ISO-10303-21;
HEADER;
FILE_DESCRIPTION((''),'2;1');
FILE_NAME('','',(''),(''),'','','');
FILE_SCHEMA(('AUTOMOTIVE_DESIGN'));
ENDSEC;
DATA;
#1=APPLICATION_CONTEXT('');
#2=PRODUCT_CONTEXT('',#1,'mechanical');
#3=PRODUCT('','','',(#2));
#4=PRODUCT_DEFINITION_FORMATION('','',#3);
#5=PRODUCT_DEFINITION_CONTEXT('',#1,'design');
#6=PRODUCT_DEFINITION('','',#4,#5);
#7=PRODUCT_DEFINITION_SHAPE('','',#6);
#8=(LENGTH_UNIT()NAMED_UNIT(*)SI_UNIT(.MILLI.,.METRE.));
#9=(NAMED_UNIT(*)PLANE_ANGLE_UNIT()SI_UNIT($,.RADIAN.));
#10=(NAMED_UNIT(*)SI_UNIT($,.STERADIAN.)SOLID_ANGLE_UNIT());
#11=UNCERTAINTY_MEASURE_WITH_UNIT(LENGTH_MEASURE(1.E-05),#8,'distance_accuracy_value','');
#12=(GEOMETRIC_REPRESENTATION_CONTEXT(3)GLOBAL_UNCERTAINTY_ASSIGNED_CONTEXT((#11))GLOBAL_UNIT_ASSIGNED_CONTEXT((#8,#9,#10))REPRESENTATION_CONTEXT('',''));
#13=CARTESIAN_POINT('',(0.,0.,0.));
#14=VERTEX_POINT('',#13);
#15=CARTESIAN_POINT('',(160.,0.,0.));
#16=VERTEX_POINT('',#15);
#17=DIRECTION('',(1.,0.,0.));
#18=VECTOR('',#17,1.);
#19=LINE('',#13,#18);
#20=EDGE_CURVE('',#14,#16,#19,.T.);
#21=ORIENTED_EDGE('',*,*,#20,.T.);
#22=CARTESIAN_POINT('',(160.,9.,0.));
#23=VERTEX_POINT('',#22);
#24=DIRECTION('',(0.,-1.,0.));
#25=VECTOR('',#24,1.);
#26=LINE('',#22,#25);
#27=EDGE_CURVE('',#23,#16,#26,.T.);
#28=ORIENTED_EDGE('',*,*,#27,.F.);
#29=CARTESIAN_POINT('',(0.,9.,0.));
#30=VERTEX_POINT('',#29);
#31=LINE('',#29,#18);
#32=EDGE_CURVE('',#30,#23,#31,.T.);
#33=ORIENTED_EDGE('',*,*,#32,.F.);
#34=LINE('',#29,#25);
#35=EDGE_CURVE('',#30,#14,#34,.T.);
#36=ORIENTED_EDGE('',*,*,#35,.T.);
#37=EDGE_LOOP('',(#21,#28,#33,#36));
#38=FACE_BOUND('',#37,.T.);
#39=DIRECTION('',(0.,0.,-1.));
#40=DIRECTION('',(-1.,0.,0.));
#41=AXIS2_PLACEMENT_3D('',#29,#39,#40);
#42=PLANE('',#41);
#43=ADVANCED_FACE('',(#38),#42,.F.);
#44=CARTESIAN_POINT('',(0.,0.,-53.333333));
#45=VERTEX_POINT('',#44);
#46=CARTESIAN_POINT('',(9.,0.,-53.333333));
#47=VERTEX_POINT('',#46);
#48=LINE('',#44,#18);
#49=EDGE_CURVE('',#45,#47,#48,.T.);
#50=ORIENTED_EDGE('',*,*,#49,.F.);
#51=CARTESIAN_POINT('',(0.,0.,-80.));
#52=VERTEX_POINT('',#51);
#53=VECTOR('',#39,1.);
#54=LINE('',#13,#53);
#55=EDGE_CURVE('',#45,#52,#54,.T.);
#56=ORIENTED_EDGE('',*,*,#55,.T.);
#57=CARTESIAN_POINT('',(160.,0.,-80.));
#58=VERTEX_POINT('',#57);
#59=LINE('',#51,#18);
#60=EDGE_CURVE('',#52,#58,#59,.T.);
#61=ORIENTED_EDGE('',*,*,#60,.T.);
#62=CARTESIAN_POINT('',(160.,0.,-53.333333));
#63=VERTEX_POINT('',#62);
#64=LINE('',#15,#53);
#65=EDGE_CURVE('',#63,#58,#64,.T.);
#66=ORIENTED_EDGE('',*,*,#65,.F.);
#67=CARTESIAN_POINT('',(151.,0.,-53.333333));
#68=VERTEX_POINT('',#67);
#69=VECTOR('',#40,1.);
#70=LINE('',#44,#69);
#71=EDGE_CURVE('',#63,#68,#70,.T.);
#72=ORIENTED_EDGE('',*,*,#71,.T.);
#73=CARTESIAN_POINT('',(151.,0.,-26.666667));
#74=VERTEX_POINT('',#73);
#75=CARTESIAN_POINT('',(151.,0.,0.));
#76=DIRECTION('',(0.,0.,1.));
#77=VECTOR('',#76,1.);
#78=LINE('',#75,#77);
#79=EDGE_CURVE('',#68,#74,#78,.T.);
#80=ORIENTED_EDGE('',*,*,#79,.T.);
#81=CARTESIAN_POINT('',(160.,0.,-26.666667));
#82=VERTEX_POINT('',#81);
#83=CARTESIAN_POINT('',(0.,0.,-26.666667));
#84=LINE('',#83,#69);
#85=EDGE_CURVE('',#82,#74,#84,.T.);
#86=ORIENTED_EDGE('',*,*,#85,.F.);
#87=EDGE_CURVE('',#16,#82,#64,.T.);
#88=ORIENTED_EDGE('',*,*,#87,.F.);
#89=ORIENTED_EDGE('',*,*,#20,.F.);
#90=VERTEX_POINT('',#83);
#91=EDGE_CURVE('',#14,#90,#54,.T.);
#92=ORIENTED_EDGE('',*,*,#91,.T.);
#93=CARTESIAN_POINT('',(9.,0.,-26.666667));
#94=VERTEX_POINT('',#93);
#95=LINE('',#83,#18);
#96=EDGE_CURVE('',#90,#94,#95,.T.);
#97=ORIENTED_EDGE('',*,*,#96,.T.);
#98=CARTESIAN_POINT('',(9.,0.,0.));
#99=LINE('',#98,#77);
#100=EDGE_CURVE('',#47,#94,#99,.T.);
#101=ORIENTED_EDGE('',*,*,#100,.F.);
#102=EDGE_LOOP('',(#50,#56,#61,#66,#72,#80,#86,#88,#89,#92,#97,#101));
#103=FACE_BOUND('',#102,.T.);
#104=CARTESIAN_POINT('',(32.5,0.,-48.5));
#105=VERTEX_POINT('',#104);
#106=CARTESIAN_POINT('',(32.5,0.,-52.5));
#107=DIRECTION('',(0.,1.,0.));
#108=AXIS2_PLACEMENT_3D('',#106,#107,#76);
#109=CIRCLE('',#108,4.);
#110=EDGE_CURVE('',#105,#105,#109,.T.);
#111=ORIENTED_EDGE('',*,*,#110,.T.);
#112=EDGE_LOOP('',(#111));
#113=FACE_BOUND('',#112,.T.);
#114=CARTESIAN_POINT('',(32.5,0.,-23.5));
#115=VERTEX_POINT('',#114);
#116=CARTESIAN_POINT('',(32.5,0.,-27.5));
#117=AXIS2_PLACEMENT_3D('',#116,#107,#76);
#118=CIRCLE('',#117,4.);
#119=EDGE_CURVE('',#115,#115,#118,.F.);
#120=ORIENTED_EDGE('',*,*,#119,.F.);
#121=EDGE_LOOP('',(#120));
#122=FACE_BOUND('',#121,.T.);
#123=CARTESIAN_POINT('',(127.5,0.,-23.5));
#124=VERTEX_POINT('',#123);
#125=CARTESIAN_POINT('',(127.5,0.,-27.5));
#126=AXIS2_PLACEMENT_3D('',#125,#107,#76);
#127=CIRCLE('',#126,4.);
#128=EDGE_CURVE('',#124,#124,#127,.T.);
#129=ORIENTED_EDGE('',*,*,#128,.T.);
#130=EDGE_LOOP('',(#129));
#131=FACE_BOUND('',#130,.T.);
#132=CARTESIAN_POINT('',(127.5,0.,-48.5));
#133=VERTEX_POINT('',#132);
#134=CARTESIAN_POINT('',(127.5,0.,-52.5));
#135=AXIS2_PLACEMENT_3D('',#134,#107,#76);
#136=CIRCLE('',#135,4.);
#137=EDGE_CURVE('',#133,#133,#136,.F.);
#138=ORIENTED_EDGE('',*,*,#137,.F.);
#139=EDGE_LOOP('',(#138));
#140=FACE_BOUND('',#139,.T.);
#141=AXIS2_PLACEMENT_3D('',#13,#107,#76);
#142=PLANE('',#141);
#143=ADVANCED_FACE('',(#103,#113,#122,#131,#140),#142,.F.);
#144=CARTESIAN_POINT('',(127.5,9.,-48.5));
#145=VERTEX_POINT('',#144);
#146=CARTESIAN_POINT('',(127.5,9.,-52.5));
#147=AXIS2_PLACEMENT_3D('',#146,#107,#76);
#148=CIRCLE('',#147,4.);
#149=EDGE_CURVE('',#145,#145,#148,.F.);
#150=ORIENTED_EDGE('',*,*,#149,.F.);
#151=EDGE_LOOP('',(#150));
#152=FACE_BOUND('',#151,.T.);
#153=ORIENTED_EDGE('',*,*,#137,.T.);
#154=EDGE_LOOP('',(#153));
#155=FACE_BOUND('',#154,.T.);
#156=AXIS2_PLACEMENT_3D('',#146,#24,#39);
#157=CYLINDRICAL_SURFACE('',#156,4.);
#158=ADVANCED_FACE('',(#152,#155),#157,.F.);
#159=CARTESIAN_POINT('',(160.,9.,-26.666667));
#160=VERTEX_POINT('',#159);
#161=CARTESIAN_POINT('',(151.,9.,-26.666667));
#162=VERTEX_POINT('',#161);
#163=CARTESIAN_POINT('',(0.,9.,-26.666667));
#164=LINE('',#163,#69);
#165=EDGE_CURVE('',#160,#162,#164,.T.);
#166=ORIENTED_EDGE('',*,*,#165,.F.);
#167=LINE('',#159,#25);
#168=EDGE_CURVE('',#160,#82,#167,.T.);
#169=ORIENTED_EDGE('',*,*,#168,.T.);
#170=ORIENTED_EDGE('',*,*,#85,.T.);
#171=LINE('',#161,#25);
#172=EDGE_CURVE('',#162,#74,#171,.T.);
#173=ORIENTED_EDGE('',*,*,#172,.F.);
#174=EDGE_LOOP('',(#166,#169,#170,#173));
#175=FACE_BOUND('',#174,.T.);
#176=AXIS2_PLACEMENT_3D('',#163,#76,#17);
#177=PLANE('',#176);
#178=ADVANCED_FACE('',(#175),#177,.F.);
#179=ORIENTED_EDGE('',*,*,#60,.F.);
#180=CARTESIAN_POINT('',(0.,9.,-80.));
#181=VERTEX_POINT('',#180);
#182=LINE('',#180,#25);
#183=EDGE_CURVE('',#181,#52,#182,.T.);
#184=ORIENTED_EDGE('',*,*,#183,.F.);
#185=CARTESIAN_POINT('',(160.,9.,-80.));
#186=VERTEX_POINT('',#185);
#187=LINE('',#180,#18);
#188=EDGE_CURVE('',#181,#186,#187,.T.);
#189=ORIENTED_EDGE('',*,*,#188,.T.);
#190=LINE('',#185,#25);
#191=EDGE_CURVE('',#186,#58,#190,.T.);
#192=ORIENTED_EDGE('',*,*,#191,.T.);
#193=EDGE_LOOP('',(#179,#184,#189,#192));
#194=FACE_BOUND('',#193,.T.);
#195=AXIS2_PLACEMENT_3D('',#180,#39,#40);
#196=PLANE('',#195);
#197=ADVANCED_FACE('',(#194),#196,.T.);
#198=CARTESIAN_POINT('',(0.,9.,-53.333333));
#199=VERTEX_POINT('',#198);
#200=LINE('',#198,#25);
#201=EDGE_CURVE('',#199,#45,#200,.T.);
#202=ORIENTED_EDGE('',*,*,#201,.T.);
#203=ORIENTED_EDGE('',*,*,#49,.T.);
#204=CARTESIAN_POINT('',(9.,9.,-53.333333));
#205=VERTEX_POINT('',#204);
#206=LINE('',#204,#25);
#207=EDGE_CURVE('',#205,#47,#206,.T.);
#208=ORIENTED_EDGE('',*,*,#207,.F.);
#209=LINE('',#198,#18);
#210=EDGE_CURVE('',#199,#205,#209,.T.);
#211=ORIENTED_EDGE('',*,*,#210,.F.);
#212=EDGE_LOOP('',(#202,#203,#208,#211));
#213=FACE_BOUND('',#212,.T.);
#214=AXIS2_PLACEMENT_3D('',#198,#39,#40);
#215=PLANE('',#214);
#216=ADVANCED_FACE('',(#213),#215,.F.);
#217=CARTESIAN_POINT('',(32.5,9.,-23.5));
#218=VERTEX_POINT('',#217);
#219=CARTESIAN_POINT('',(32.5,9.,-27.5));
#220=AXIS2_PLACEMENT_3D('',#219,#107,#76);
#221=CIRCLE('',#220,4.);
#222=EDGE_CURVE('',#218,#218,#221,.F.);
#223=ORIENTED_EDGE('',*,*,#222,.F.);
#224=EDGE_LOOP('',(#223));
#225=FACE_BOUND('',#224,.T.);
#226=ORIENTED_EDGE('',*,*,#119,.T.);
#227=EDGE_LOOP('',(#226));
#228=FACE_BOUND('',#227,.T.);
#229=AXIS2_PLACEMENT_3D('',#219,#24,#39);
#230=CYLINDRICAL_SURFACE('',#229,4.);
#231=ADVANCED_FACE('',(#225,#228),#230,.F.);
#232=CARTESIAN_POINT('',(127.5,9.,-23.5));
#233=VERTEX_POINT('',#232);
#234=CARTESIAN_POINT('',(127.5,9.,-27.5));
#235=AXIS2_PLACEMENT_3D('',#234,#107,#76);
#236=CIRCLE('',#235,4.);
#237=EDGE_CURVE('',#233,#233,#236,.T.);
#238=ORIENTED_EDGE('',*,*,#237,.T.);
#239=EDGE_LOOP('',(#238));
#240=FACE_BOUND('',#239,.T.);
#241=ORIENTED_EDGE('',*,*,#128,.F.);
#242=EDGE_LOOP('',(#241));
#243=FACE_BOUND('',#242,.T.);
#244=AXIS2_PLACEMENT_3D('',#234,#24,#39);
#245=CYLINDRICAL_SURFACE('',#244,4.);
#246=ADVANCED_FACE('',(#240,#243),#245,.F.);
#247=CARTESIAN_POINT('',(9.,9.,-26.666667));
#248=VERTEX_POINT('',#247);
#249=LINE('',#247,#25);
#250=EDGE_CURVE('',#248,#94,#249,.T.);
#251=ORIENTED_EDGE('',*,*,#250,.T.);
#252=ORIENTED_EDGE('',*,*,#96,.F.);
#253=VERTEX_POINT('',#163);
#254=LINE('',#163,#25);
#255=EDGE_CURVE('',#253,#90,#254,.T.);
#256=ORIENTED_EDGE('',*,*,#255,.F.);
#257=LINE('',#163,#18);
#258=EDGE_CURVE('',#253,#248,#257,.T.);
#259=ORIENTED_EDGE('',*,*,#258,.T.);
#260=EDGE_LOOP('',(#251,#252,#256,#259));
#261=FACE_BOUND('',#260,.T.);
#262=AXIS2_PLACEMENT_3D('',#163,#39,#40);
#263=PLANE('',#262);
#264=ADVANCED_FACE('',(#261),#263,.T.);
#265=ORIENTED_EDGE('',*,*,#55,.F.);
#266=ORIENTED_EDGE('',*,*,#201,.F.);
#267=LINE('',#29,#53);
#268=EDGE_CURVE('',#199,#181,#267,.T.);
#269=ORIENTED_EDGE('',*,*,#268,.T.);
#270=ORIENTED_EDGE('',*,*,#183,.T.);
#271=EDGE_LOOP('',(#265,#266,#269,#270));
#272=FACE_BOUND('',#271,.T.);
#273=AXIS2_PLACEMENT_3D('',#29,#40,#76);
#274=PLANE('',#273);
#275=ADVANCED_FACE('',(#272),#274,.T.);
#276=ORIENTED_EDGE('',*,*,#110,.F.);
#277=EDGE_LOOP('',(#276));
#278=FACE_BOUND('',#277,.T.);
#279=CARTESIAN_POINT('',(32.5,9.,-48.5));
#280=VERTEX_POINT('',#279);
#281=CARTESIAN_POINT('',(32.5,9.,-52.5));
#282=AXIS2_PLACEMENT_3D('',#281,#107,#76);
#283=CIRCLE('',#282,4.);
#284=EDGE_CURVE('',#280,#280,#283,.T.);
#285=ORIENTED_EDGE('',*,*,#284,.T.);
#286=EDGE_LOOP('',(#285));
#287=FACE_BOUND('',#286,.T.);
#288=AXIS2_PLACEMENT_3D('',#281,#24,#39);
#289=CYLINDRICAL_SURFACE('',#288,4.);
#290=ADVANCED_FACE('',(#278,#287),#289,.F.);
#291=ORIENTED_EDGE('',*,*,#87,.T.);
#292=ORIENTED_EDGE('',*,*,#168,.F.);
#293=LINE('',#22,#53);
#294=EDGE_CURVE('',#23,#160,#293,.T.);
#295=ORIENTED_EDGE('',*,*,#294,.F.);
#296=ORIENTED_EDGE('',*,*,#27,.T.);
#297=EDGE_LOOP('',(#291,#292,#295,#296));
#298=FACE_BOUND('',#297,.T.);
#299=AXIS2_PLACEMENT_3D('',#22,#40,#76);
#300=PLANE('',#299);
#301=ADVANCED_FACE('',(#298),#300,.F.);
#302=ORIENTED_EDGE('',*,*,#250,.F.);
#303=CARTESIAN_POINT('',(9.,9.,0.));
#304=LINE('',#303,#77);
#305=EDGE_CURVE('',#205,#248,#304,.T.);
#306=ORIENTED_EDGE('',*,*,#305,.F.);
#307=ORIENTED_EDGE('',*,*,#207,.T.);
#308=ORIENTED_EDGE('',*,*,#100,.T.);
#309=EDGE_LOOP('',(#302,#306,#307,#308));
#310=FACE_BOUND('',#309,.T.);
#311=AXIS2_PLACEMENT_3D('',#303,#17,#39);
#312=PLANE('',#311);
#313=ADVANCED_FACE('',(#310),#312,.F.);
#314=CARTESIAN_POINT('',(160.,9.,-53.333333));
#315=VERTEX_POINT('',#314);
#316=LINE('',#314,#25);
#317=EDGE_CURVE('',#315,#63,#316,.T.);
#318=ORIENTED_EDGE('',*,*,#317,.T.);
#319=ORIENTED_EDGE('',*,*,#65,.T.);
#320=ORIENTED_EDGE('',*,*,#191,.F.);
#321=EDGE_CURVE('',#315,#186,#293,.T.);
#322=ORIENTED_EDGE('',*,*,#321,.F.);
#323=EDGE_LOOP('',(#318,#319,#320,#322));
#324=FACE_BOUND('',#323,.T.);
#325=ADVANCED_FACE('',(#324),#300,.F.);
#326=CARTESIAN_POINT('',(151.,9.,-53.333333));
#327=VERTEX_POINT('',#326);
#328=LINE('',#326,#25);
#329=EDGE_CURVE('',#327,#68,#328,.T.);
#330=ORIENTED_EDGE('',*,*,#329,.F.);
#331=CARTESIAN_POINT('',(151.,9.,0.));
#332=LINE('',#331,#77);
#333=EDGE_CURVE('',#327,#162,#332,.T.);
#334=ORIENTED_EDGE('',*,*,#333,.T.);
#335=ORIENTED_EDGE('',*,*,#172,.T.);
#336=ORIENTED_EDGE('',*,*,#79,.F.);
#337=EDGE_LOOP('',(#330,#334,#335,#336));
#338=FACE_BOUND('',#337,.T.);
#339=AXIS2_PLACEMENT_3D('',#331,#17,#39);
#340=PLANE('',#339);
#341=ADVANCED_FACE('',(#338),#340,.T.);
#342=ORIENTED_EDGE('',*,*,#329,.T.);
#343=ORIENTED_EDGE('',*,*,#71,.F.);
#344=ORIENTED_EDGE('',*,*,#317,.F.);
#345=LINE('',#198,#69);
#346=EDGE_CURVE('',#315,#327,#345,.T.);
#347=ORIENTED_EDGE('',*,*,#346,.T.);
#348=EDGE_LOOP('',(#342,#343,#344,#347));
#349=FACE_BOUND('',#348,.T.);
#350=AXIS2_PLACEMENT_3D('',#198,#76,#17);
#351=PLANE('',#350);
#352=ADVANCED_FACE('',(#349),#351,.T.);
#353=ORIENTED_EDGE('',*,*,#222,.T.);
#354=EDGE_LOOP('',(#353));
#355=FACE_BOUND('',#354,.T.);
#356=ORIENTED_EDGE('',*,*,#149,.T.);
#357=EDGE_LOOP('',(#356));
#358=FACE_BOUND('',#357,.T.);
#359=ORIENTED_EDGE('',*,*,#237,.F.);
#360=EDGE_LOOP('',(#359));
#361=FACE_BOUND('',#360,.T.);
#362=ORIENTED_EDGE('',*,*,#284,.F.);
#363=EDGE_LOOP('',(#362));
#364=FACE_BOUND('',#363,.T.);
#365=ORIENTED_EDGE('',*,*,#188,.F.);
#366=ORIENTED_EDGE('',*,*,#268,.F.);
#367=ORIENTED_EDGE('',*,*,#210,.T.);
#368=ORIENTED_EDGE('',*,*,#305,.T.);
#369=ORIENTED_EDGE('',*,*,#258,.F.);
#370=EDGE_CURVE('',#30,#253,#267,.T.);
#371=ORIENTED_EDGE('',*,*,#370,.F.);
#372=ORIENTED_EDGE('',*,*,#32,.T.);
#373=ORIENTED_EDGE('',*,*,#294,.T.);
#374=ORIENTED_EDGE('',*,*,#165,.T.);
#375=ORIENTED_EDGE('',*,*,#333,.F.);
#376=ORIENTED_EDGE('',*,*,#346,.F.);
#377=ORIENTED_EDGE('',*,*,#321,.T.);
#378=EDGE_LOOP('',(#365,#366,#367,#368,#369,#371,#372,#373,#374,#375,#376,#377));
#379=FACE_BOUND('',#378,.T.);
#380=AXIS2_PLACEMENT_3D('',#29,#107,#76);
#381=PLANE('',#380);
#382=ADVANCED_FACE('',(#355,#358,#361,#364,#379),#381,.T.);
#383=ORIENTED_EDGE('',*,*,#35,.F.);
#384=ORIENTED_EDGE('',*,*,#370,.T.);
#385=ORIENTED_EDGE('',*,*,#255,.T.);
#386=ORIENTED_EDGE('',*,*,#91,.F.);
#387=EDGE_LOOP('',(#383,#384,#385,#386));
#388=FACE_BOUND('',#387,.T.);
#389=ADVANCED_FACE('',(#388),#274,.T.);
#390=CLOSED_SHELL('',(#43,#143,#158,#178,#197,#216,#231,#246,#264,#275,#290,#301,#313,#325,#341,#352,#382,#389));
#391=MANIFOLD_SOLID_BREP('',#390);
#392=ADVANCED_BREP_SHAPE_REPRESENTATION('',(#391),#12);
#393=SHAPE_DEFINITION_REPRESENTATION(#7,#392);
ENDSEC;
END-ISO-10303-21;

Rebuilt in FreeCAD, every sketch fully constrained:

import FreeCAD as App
import Part
import Sketcher
Q = App.Units.Quantity

doc = App.newDocument("Part")
body = doc.addObject("PartDesign::Body", "Body")

sketch1 = body.newObject("Sketcher::SketchObject", "Sketch")
sketch1.AttachmentSupport = (doc.getObject("XZ_Plane"), [""])
sketch1.MapMode = "FlatFace"
sketch1.addGeometry([
    Part.LineSegment(App.Vector(0, -26.7, 0), App.Vector(0, 0, 0)),
    Part.LineSegment(App.Vector(0, 0, 0), App.Vector(160, 0, 0)),
    Part.LineSegment(App.Vector(160, 0, 0), App.Vector(160, -26.7, 0)),
    Part.LineSegment(App.Vector(160, -26.7, 0), App.Vector(151, -26.7, 0)),
    Part.LineSegment(App.Vector(151, -26.7, 0), App.Vector(151, -53.3, 0)),
    Part.LineSegment(App.Vector(151, -53.3, 0), App.Vector(160, -53.3, 0)),
    Part.LineSegment(App.Vector(160, -53.3, 0), App.Vector(160, -80, 0)),
    Part.LineSegment(App.Vector(160, -80, 0), App.Vector(0, -80, 0)),
    Part.LineSegment(App.Vector(0, -80, 0), App.Vector(0, -53.3, 0)),
    Part.LineSegment(App.Vector(0, -53.3, 0), App.Vector(9, -53.3, 0)),
    Part.LineSegment(App.Vector(9, -53.3, 0), App.Vector(9, -26.7, 0)),
    Part.LineSegment(App.Vector(9, -26.7, 0), App.Vector(0, -26.7, 0)),
    Part.Circle(App.Vector(32.5, -27.5, 0), App.Vector(0, 0, 1), 4),
    Part.Circle(App.Vector(127.5, -27.5, 0), App.Vector(0, 0, 1), 4),
    Part.Circle(App.Vector(32.5, -52.5, 0), App.Vector(0, 0, 1), 4),
    Part.Circle(App.Vector(127.5, -52.5, 0), App.Vector(0, 0, 1), 4),
], False)
sketch1.addConstraint([
    Sketcher.Constraint("Coincident", 0, 2, 1, 1),
    Sketcher.Constraint("Coincident", 1, 2, 2, 1),
    Sketcher.Constraint("Coincident", 2, 2, 3, 1),
    Sketcher.Constraint("Coincident", 3, 2, 4, 1),
    Sketcher.Constraint("Coincident", 4, 2, 5, 1),
    Sketcher.Constraint("Coincident", 5, 2, 6, 1),
    Sketcher.Constraint("Coincident", 6, 2, 7, 1),
    Sketcher.Constraint("Coincident", 7, 2, 8, 1),
    Sketcher.Constraint("Coincident", 8, 2, 9, 1),
    Sketcher.Constraint("Coincident", 9, 2, 10, 1),
    Sketcher.Constraint("Coincident", 10, 2, 11, 1),
    Sketcher.Constraint("Coincident", 11, 2, 0, 1),
    Sketcher.Constraint("Vertical", 0),
    Sketcher.Constraint("Horizontal", 1),
    Sketcher.Constraint("Vertical", 2),
    Sketcher.Constraint("Horizontal", 3),
    Sketcher.Constraint("Vertical", 4),
    Sketcher.Constraint("Horizontal", 5),
    Sketcher.Constraint("Vertical", 6),
    Sketcher.Constraint("Horizontal", 7),
    Sketcher.Constraint("Vertical", 8),
    Sketcher.Constraint("Horizontal", 9),
    Sketcher.Constraint("Vertical", 10),
    Sketcher.Constraint("Horizontal", 11),
    Sketcher.Constraint("Coincident", 0, 2, -1, 1),
    Sketcher.Constraint("Equal", 12, 13),
    Sketcher.Constraint("Equal", 13, 14),
    Sketcher.Constraint("Equal", 14, 15),
    Sketcher.Constraint("PointOnObject", 7, 2, -2),
    Sketcher.Constraint("Horizontal", 12, 3, 13, 3),
    Sketcher.Constraint("Horizontal", 14, 3, 15, 3),
    Sketcher.Constraint("Horizontal", 5, 2, 8, 2),
    Sketcher.Constraint("Horizontal", 3, 2, 10, 2),
    Sketcher.Constraint("Vertical", 12, 3, 14, 3),
    Sketcher.Constraint("Vertical", 13, 3, 15, 3),
    Sketcher.Constraint("Vertical", 2, 2, 5, 2),
    Sketcher.Constraint("Equal", 5, 9),
    Sketcher.Constraint("Equal", 2, 4),
    Sketcher.Constraint("Equal", 4, 6),
    Sketcher.Constraint("Diameter", 12, Q("8 mm")),
    Sketcher.Constraint("DistanceX", 1, 1, 1, 2, Q("160 mm")),
    Sketcher.Constraint("DistanceX", 3, 2, 3, 1, Q("9 mm")),
    Sketcher.Constraint("DistanceY", 6, 2, -1, 1, Q("80 mm")),
    Sketcher.Constraint("DistanceX", 12, 3, 13, 3, Q("95 mm")),
    Sketcher.Constraint("DistanceY", 14, 3, 12, 3, Q("25 mm")),
    Sketcher.Constraint("DistanceX", -1, 1, 12, 3, Q("32.5 mm")),
    Sketcher.Constraint("DistanceY", 12, 3, -1, 1, Q("27.5 mm")),
])
pad1 = body.newObject("PartDesign::Pad", "Pad")
pad1.Profile = sketch1
pad1.Length = 9
pad1.Reversed = True

doc.recompute()
